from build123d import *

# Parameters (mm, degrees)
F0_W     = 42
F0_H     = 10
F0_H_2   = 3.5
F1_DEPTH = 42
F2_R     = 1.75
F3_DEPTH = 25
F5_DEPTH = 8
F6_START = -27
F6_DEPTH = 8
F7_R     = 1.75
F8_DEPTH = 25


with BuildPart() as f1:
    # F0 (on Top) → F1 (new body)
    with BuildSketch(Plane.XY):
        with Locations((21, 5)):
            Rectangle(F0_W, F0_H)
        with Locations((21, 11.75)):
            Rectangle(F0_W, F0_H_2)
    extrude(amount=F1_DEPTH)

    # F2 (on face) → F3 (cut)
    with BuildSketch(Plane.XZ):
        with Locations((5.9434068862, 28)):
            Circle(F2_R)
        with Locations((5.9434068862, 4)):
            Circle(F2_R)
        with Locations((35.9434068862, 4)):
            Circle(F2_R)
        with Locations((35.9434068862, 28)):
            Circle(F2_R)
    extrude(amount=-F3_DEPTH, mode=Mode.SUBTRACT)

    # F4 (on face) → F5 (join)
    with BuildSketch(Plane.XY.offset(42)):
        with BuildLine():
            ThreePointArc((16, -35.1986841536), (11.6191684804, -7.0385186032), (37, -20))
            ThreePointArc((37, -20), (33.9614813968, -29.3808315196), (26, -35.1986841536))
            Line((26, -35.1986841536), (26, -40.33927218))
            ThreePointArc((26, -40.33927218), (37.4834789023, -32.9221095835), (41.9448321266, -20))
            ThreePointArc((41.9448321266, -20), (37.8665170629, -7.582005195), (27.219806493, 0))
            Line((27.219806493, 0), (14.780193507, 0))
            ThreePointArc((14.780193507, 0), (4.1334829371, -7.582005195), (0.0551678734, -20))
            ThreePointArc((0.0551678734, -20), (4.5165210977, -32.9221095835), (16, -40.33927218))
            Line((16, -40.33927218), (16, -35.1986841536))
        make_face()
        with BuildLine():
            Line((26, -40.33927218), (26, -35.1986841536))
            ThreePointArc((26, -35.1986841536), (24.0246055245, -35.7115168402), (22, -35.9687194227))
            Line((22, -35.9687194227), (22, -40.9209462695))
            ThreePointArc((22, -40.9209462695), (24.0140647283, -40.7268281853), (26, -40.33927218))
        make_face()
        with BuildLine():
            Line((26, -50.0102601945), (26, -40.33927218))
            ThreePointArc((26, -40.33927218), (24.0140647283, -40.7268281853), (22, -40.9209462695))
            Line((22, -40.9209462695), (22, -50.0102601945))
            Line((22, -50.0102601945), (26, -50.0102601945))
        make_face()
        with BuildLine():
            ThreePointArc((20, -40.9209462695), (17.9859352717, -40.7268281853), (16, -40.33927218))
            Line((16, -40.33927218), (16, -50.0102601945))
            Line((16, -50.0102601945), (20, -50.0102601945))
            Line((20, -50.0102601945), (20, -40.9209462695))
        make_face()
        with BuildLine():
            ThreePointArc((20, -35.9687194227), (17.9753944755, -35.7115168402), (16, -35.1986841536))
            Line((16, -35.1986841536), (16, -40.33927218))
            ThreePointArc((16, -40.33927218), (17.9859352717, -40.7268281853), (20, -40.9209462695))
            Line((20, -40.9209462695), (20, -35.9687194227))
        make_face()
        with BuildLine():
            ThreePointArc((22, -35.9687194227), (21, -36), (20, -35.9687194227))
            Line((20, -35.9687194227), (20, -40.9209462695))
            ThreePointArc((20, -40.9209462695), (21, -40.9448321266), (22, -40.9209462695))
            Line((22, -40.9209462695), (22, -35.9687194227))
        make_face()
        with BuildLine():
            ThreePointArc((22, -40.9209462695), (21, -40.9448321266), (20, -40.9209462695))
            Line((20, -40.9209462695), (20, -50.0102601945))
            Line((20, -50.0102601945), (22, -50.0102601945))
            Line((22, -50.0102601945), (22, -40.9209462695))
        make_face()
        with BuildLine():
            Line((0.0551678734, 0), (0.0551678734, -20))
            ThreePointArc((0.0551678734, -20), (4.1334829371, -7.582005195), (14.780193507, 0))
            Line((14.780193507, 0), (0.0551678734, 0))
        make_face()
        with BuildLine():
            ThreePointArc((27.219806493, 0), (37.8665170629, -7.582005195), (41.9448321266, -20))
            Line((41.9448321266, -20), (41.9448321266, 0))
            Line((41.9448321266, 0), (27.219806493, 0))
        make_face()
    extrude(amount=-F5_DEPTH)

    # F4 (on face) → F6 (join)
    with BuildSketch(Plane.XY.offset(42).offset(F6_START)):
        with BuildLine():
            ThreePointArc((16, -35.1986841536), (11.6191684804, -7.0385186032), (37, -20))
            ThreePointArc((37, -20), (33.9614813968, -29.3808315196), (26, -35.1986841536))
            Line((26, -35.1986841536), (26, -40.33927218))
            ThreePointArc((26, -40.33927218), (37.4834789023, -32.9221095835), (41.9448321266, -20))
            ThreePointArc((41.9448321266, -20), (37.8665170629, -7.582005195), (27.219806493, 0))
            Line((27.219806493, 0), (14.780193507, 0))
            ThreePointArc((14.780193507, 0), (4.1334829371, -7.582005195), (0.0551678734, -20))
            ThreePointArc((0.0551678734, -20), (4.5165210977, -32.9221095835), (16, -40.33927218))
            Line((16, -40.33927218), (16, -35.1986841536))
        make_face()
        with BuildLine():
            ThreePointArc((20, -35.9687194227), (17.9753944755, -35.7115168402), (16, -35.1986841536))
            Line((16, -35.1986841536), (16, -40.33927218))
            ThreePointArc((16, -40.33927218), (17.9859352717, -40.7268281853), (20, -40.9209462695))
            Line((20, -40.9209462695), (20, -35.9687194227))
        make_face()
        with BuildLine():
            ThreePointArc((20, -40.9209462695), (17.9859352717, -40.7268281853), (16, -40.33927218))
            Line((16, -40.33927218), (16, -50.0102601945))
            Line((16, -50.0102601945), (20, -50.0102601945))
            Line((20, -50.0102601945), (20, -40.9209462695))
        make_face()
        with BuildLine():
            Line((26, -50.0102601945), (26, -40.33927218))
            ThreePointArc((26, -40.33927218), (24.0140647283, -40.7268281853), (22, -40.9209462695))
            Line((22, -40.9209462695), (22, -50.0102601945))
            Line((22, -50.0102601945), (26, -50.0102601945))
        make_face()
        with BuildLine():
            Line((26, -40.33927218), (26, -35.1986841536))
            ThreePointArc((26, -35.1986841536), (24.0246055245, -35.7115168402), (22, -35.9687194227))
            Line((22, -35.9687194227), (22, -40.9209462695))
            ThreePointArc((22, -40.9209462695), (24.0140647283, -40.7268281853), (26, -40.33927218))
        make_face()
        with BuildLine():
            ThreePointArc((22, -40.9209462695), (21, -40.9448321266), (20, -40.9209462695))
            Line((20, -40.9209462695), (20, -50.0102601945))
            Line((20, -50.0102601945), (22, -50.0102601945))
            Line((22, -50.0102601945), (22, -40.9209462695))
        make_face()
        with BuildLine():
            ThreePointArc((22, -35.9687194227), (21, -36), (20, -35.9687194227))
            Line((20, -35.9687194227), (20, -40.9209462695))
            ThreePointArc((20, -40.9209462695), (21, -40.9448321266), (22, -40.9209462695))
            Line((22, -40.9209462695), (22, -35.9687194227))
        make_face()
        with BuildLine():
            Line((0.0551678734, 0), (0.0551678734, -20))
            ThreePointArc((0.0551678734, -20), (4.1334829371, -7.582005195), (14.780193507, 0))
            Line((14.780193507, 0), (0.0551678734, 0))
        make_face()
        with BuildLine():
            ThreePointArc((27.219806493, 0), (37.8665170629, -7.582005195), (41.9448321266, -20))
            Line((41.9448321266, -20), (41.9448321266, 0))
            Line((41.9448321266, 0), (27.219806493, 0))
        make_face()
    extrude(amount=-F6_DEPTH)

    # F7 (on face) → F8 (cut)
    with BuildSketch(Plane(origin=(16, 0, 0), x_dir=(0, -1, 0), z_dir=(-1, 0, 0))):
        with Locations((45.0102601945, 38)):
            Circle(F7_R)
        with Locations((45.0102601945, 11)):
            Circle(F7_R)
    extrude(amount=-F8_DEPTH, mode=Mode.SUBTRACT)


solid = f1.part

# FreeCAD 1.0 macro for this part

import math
import FreeCAD as App
import Part
import Sketcher

doc = App.newDocument("Part")
body = doc.addObject("PartDesign::Body", "Body")

# Sketch on XY plane
sketch1 = body.newObject("Sketcher::SketchObject", "Sketch")
sketch1.AttachmentSupport = (doc.getObject("XY_Plane"), [""])
sketch1.MapMode = "FlatFace"
sketch1.addGeometry([
    Part.LineSegment(App.Vector(0, 0, 0), App.Vector(42, 0, 0)),
    Part.LineSegment(App.Vector(42, 0, 0), App.Vector(42, 14, 0)),
    Part.LineSegment(App.Vector(42, 14, 0), App.Vector(0, 14, 0)),
    Part.LineSegment(App.Vector(0, 14, 0), App.Vector(0, 0, 0)),
], False)
sketch1.addConstraint([
    Sketcher.Constraint("Coincident", 0, 2, 1, 1),
    Sketcher.Constraint("Coincident", 1, 2, 2, 1),
    Sketcher.Constraint("Coincident", 2, 2, 3, 1),
    Sketcher.Constraint("Coincident", 3, 2, 0, 1),
    Sketcher.Constraint("Horizontal", 0),
    Sketcher.Constraint("Vertical", 1),
    Sketcher.Constraint("Horizontal", 2),
    Sketcher.Constraint("Vertical", 3),
    Sketcher.Constraint("Coincident", 3, 2, -1, 1),
    Sketcher.Constraint("DistanceX", 0, 1, 0, 2, 42.0),
    Sketcher.Constraint("DistanceY", 1, 1, 1, 2, 13.5),
])
pad1 = body.newObject("PartDesign::Pad", "Pad")
pad1.Profile = sketch1
pad1.Length = 42

# Sketch on XZ plane
sketch2 = body.newObject("Sketcher::SketchObject", "Sketch001")
sketch2.AttachmentSupport = (doc.getObject("XZ_Plane"), [""])
sketch2.MapMode = "FlatFace"
sketch2.addGeometry([
    Part.Circle(App.Vector(5.9, 28, 0), App.Vector(0, 0, 1), 1.8),
    Part.Circle(App.Vector(5.9, 4, 0), App.Vector(0, 0, 1), 1.8),
    Part.Circle(App.Vector(35.9, 4, 0), App.Vector(0, 0, 1), 1.8),
    Part.Circle(App.Vector(35.9, 28, 0), App.Vector(0, 0, 1), 1.8),
], False)
sketch2.addConstraint([
    Sketcher.Constraint("Equal", 0, 1),
    Sketcher.Constraint("Equal", 1, 2),
    Sketcher.Constraint("Equal", 2, 3),
    Sketcher.Constraint("Horizontal", 1, 3, 2, 3),
    Sketcher.Constraint("Horizontal", 0, 3, 3, 3),
    Sketcher.Constraint("Vertical", 0, 3, 1, 3),
    Sketcher.Constraint("Vertical", 2, 3, 3, 3),
    Sketcher.Constraint("Diameter", 0, 3.5),
    Sketcher.Constraint("DistanceY", -1, 1, 0, 3, 28.0),
    Sketcher.Constraint("DistanceY", -1, 1, 1, 3, 4.0),
    Sketcher.Constraint("DistanceX", 1, 3, 2, 3, 30.0),
    Sketcher.Constraint("DistanceX", -1, 1, 0, 3, 5.943407),
])
pocket1 = body.newObject("PartDesign::Pocket", "Pocket")
pocket1.Profile = sketch2
pocket1.Length = 25

# Sketch on XY plane
sketch3 = body.newObject("Sketcher::SketchObject", "Sketch002")
sketch3.AttachmentSupport = (doc.getObject("XY_Plane"), [""])
sketch3.MapMode = "FlatFace"
sketch3.AttachmentOffset = App.Placement(App.Vector(0, 0, 42), App.Rotation())
sketch3.addGeometry([
    Part.LineSegment(App.Vector(26, -50, 0), App.Vector(26, -40.3, 0)),  # 0
    Part.ArcOfCircle(Part.Circle(App.Vector(21, -20, 0), App.Vector(0, 0, 1), 20.9), math.radians(-76), math.radians(0)),  # 1
    Part.LineSegment(App.Vector(41.9, -20, 0), App.Vector(41.9, 0, 0)),  # 2
    Part.LineSegment(App.Vector(41.9, 0, 0), App.Vector(0.1, 0, 0)),  # 3
    Part.LineSegment(App.Vector(0.1, 0, 0), App.Vector(0.1, -20, 0)),  # 4
    Part.ArcOfCircle(Part.Circle(App.Vector(21, -20, 0), App.Vector(0, 0, 1), 20.9), math.radians(180), math.radians(256)),  # 5
    Part.LineSegment(App.Vector(16, -40.3, 0), App.Vector(16, -50, 0)),  # 6
    Part.LineSegment(App.Vector(16, -50, 0), App.Vector(26, -50, 0)),  # 7
    Part.ArcOfCircle(Part.Circle(App.Vector(21, -20, 0), App.Vector(0, 0, 1), 16), math.radians(0), math.radians(252)),  # 8
    Part.ArcOfCircle(Part.Circle(App.Vector(21, -20, 0), App.Vector(0, 0, 1), 16), math.radians(-72), math.radians(0)),  # 9
    Part.ArcOfCircle(Part.Circle(App.Vector(21, -20, 0), App.Vector(0, 0, 1), 16), math.radians(-86.42), math.radians(-71.79)),  # 10
    Part.ArcOfCircle(Part.Circle(App.Vector(21, -20, 0), App.Vector(0, 0, 1), 16), math.radians(-93.58), math.radians(-86.42)),  # 11
    Part.ArcOfCircle(Part.Circle(App.Vector(21, -20, 0), App.Vector(0, 0, 1), 16), math.radians(-108.21), math.radians(-93.58)),  # 12
], False)
sketch3.addConstraint([
    Sketcher.Constraint("Coincident", 0, 2, 1, 1),
    Sketcher.Constraint("Tangent", 1, 2, 2, 1),
    Sketcher.Constraint("Coincident", 2, 2, 3, 1),
    Sketcher.Constraint("Coincident", 3, 2, 4, 1),
    Sketcher.Constraint("Tangent", 4, 2, 5, 1),
    Sketcher.Constraint("Coincident", 5, 2, 6, 1),
    Sketcher.Constraint("Coincident", 6, 2, 7, 1),
    Sketcher.Constraint("Coincident", 7, 2, 0, 1),
    Sketcher.Constraint("Tangent", 8, 1, 9, 2),
    Sketcher.Constraint("Tangent", 9, 1, 10, 2),
    Sketcher.Constraint("Tangent", 10, 1, 11, 2),
    Sketcher.Constraint("Tangent", 11, 1, 12, 2),
    Sketcher.Constraint("Tangent", 12, 1, 8, 2),
    Sketcher.Constraint("Vertical", 0),
    Sketcher.Constraint("Vertical", 2),
    Sketcher.Constraint("Horizontal", 3),
    Sketcher.Constraint("Vertical", 4),
    Sketcher.Constraint("Vertical", 6),
    Sketcher.Constraint("Horizontal", 7),
    Sketcher.Constraint("Coincident", 5, 3, 1, 3),
    Sketcher.Constraint("Coincident", 8, 3, 1, 3),
    Sketcher.Constraint("Coincident", 10, 3, 1, 3),
    Sketcher.Constraint("Equal", 1, 5),
    Sketcher.Constraint("PointOnObject", 2, 2, -1),
    Sketcher.Constraint("Horizontal", 0, 2, 5, 2),
    Sketcher.Constraint("Horizontal", 4, 2, 8, 1),
    Sketcher.Constraint("Horizontal", 10, 1, 11, 1),
    Sketcher.Constraint("Horizontal", 9, 1, 12, 1),
    Sketcher.Constraint("Vertical", 7, 2, 9, 1),
    Sketcher.Constraint("Radius", 8, 16.0),
    Sketcher.Constraint("DistanceX", 7, 1, 7, 2, 10.0),
    Sketcher.Constraint("DistanceY", 2, 1, 2, 2, 20.0),
    Sketcher.Constraint("DistanceX", -1, 1, 1, 3, 21.0),
    Sketcher.Constraint("DistanceX", -1, 1, 10, 1, 22.0),
    Sketcher.Constraint("Radius", 1, 20.944832),
    Sketcher.Constraint("DistanceY", 0, 1, 0, 2, 9.670988),
])
pad2 = body.newObject("PartDesign::Pad", "Pad001")
pad2.Profile = sketch3
pad2.Length = 8
pad2.Reversed = True

# Sketch on XY plane
sketch4 = body.newObject("Sketcher::SketchObject", "Sketch003")
sketch4.AttachmentSupport = (doc.getObject("XY_Plane"), [""])
sketch4.MapMode = "FlatFace"
sketch4.AttachmentOffset = App.Placement(App.Vector(0, 0, 15), App.Rotation())
sketch4.addGeometry([
    Part.LineSegment(App.Vector(26, -50, 0), App.Vector(26, -40.3, 0)),  # 0
    Part.ArcOfCircle(Part.Circle(App.Vector(21, -20, 0), App.Vector(0, 0, 1), 20.9), math.radians(-76), math.radians(0)),  # 1
    Part.LineSegment(App.Vector(41.9, -20, 0), App.Vector(41.9, 0, 0)),  # 2
    Part.LineSegment(App.Vector(41.9, 0, 0), App.Vector(0.1, 0, 0)),  # 3
    Part.LineSegment(App.Vector(0.1, 0, 0), App.Vector(0.1, -20, 0)),  # 4
    Part.ArcOfCircle(Part.Circle(App.Vector(21, -20, 0), App.Vector(0, 0, 1), 20.9), math.radians(180), math.radians(256)),  # 5
    Part.LineSegment(App.Vector(16, -40.3, 0), App.Vector(16, -50, 0)),  # 6
    Part.LineSegment(App.Vector(16, -50, 0), App.Vector(26, -50, 0)),  # 7
    Part.ArcOfCircle(Part.Circle(App.Vector(21, -20, 0), App.Vector(0, 0, 1), 16), math.radians(0), math.radians(252)),  # 8
    Part.ArcOfCircle(Part.Circle(App.Vector(21, -20, 0), App.Vector(0, 0, 1), 16), math.radians(-72), math.radians(0)),  # 9
    Part.ArcOfCircle(Part.Circle(App.Vector(21, -20, 0), App.Vector(0, 0, 1), 16), math.radians(-86.42), math.radians(-71.79)),  # 10
    Part.ArcOfCircle(Part.Circle(App.Vector(21, -20, 0), App.Vector(0, 0, 1), 16), math.radians(-93.58), math.radians(-86.42)),  # 11
    Part.ArcOfCircle(Part.Circle(App.Vector(21, -20, 0), App.Vector(0, 0, 1), 16), math.radians(-108.21), math.radians(-93.58)),  # 12
], False)
sketch4.addConstraint([
    Sketcher.Constraint("Coincident", 0, 2, 1, 1),
    Sketcher.Constraint("Tangent", 1, 2, 2, 1),
    Sketcher.Constraint("Coincident", 2, 2, 3, 1),
    Sketcher.Constraint("Coincident", 3, 2, 4, 1),
    Sketcher.Constraint("Tangent", 4, 2, 5, 1),
    Sketcher.Constraint("Coincident", 5, 2, 6, 1),
    Sketcher.Constraint("Coincident", 6, 2, 7, 1),
    Sketcher.Constraint("Coincident", 7, 2, 0, 1),
    Sketcher.Constraint("Tangent", 8, 1, 9, 2),
    Sketcher.Constraint("Tangent", 9, 1, 10, 2),
    Sketcher.Constraint("Tangent", 10, 1, 11, 2),
    Sketcher.Constraint("Tangent", 11, 1, 12, 2),
    Sketcher.Constraint("Tangent", 12, 1, 8, 2),
    Sketcher.Constraint("Vertical", 0),
    Sketcher.Constraint("Vertical", 2),
    Sketcher.Constraint("Horizontal", 3),
    Sketcher.Constraint("Vertical", 4),
    Sketcher.Constraint("Vertical", 6),
    Sketcher.Constraint("Horizontal", 7),
    Sketcher.Constraint("Coincident", 5, 3, 1, 3),
    Sketcher.Constraint("Coincident", 8, 3, 1, 3),
    Sketcher.Constraint("Coincident", 10, 3, 1, 3),
    Sketcher.Constraint("Equal", 1, 5),
    Sketcher.Constraint("PointOnObject", 2, 2, -1),
    Sketcher.Constraint("Horizontal", 0, 2, 5, 2),
    Sketcher.Constraint("Horizontal", 4, 2, 8, 1),
    Sketcher.Constraint("Horizontal", 10, 1, 11, 1),
    Sketcher.Constraint("Horizontal", 9, 1, 12, 1),
    Sketcher.Constraint("Vertical", 7, 2, 9, 1),
    Sketcher.Constraint("Radius", 8, 16.0),
    Sketcher.Constraint("DistanceX", 7, 1, 7, 2, 10.0),
    Sketcher.Constraint("DistanceY", 2, 1, 2, 2, 20.0),
    Sketcher.Constraint("DistanceX", -1, 1, 1, 3, 21.0),
    Sketcher.Constraint("DistanceX", -1, 1, 10, 1, 22.0),
    Sketcher.Constraint("Radius", 1, 20.944832),
    Sketcher.Constraint("DistanceY", 0, 1, 0, 2, 9.670988),
])
pad3 = body.newObject("PartDesign::Pad", "Pad002")
pad3.Profile = sketch4
pad3.Length = 8
pad3.Reversed = True

# Sketch on YZ plane
sketch5 = body.newObject("Sketcher::SketchObject", "Sketch004")
sketch5.AttachmentSupport = (doc.getObject("YZ_Plane"), [""])
sketch5.MapMode = "FlatFace"
sketch5.AttachmentOffset = App.Placement(App.Vector(0, 0, 16), App.Rotation())
sketch5.addGeometry([
    Part.Circle(App.Vector(-45, 38, 0), App.Vector(0, 0, 1), 1.8),
    Part.Circle(App.Vector(-45, 11, 0), App.Vector(0, 0, 1), 1.8),
], False)
sketch5.addConstraint([
    Sketcher.Constraint("Equal", 0, 1),
    Sketcher.Constraint("Vertical", 0, 3, 1, 3),
    Sketcher.Constraint("Diameter", 0, 3.5),
    Sketcher.Constraint("DistanceY", -1, 1, 0, 3, 38.0),
    Sketcher.Constraint("DistanceY", -1, 1, 1, 3, 11.0),
    Sketcher.Constraint("DistanceX", 0, 3, -1, 1, 45.01026),
])
pocket2 = body.newObject("PartDesign::Pocket", "Pocket001")
pocket2.Profile = sketch5
pocket2.Length = 25
pocket2.Reversed = True

doc.recompute()
